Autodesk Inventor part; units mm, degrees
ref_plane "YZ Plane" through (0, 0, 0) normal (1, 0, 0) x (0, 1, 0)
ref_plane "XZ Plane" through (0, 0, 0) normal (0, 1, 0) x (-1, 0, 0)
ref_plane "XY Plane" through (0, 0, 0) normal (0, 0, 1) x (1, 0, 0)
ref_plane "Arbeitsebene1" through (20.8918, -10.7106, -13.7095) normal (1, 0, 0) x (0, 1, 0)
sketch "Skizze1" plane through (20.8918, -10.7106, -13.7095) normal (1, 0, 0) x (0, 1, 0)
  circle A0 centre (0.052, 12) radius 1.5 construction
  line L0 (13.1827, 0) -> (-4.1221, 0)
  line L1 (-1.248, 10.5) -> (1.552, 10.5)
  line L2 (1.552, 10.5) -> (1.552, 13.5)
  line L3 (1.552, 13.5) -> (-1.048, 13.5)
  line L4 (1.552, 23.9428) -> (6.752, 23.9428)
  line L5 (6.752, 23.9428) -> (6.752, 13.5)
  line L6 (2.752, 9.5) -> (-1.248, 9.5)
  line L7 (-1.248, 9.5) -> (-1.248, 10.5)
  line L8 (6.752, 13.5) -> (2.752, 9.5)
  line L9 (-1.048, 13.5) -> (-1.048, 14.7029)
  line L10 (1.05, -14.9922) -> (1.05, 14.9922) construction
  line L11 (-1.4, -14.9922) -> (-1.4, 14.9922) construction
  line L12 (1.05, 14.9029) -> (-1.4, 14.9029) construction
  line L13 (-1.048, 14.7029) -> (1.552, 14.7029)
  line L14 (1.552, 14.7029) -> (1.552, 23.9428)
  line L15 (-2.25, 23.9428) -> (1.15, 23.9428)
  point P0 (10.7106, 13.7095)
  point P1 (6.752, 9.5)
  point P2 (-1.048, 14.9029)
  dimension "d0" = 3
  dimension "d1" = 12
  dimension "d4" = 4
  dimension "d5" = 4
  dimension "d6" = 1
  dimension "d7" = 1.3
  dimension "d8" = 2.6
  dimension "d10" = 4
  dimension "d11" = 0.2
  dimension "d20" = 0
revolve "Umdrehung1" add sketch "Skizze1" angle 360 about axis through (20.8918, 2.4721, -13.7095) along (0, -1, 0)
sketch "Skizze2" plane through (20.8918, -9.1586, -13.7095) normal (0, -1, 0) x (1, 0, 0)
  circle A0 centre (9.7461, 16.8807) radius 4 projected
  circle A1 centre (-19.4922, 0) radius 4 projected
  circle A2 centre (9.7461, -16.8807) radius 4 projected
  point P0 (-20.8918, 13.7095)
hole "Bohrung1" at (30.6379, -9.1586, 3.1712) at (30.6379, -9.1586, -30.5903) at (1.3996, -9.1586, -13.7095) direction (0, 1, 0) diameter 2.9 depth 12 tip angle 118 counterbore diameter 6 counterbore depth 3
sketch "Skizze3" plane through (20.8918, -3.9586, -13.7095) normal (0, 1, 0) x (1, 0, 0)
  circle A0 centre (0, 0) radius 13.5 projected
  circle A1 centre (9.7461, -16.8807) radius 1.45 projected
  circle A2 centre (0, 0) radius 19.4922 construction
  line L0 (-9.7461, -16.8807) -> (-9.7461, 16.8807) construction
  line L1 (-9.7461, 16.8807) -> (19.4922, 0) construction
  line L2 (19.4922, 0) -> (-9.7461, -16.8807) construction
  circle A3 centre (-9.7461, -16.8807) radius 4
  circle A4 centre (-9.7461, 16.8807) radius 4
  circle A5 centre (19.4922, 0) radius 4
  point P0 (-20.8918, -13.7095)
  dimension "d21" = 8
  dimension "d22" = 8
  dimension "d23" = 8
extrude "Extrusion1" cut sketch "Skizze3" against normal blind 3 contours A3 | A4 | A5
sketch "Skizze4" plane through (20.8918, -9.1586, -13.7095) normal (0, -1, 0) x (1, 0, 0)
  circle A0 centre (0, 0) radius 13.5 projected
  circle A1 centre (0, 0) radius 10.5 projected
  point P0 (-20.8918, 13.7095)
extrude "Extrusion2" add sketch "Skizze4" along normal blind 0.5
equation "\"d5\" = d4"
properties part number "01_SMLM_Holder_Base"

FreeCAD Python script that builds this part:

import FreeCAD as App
import Part
import Sketcher

V = App.Vector

doc = App.newDocument("Part")
body = doc.addObject("PartDesign::Body", "Body")

sketch1 = body.newObject("Sketcher::SketchObject", "Sketch")
sketch1.AttachmentSupport = (doc.getObject("YZ_Plane"), [""])
sketch1.MapMode = "FlatFace"
sketch1.AttachmentOffset = App.Placement(V(0, 0, 20.8918), App.Rotation())
sketch1.addGeometry(Part.LineSegment(V(-9.2, -3.2, 0), V(-12, -3.2, 0)), False)
sketch1.addGeometry(Part.LineSegment(V(-12, -3.2, 0), V(-12, -4.2, 0)), False)
sketch1.addGeometry(Part.LineSegment(V(-12, -4.2, 0), V(-8, -4.2, 0)), False)
sketch1.addGeometry(Part.LineSegment(V(-8, -4.2, 0), V(-4, -0.2, 0)), False)
sketch1.addGeometry(Part.LineSegment(V(-4, -0.2, 0), V(-4, 10.2, 0)), False)
sketch1.addGeometry(Part.LineSegment(V(-4, 10.2, 0), V(-9.2, 10.2, 0)), False)
sketch1.addGeometry(Part.LineSegment(V(-9.2, 10.2, 0), V(-9.2, 1, 0)), False)
sketch1.addGeometry(Part.LineSegment(V(-9.2, 1, 0), V(-11.8, 1, 0)), False)
sketch1.addGeometry(Part.LineSegment(V(-11.8, 1, 0), V(-11.8, -0.2, 0)), False)
sketch1.addGeometry(Part.LineSegment(V(-11.8, -0.2, 0), V(-9.2, -0.2, 0)), False)
sketch1.addGeometry(Part.LineSegment(V(-9.2, -0.2, 0), V(-9.2, -3.2, 0)), False)
sketch1.addGeometry(Part.LineSegment(V(-4, -13.7, 0), V(-12, -13.7, 0)), True)
sketch1.addConstraint(Sketcher.Constraint("Coincident", 0, 2, 1, 1))
sketch1.addConstraint(Sketcher.Constraint("Coincident", 1, 2, 2, 1))
sketch1.addConstraint(Sketcher.Constraint("Coincident", 2, 2, 3, 1))
sketch1.addConstraint(Sketcher.Constraint("Coincident", 3, 2, 4, 1))
sketch1.addConstraint(Sketcher.Constraint("Coincident", 4, 2, 5, 1))
sketch1.addConstraint(Sketcher.Constraint("Coincident", 5, 2, 6, 1))
sketch1.addConstraint(Sketcher.Constraint("Coincident", 6, 2, 7, 1))
sketch1.addConstraint(Sketcher.Constraint("Coincident", 7, 2, 8, 1))
sketch1.addConstraint(Sketcher.Constraint("Coincident", 8, 2, 9, 1))
sketch1.addConstraint(Sketcher.Constraint("Coincident", 9, 2, 10, 1))
sketch1.addConstraint(Sketcher.Constraint("Coincident", 10, 2, 0, 1))
sketch1.addConstraint(Sketcher.Constraint("Horizontal", 0))
sketch1.addConstraint(Sketcher.Constraint("Vertical", 1))
sketch1.addConstraint(Sketcher.Constraint("Horizontal", 2))
sketch1.addConstraint(Sketcher.Constraint("Vertical", 4))
sketch1.addConstraint(Sketcher.Constraint("Horizontal", 5))
sketch1.addConstraint(Sketcher.Constraint("Vertical", 6))
sketch1.addConstraint(Sketcher.Constraint("Horizontal", 7))
sketch1.addConstraint(Sketcher.Constraint("Vertical", 8))
sketch1.addConstraint(Sketcher.Constraint("Horizontal", 9))
sketch1.addConstraint(Sketcher.Constraint("Vertical", 10))
sketch1.addConstraint(Sketcher.Constraint("Horizontal", 11))
sketch1.addConstraint(Sketcher.Constraint("Horizontal", 3, 2, 8, 2))
sketch1.addConstraint(Sketcher.Constraint("Vertical", 6, 2, 9, 2))
sketch1.addConstraint(Sketcher.Constraint("Vertical", 4, 2, 11, 1))
sketch1.addConstraint(Sketcher.Constraint("Vertical", 1, 2, 11, 2))
sketch1.addConstraint(Sketcher.Constraint("DistanceX", 2, 1, 2, 2, 4.0))
sketch1.addConstraint(Sketcher.Constraint("DistanceY", 1, 2, 1, 1, 1.0))
sketch1.addConstraint(Sketcher.Constraint("DistanceY", 10, 2, 10, 1, 3.0))
sketch1.addConstraint(Sketcher.Constraint("DistanceX", 7, 2, 7, 1, 2.6))
sketch1.addConstraint(Sketcher.Constraint("DistanceX", 2, 2, 3, 2, 4.0))
sketch1.addConstraint(Sketcher.Constraint("DistanceX", 0, 2, 7, 2, 0.2))
sketch1.addConstraint(Sketcher.Constraint("DistanceY", 6, 2, 6, 1, 9.24))
sketch1.addConstraint(Sketcher.Constraint("DistanceY", 11, 1, 2, 2, 9.5))
sketch1.addConstraint(Sketcher.Constraint("DistanceY", 8, 2, 8, 1, 1.203))
sketch1.addConstraint(Sketcher.Constraint("DistanceX", 0, 2, -1, 1, 11.9586))
sketch1.addConstraint(Sketcher.Constraint("DistanceY", 0, 2, -1, 1, 3.2095))
revolution = body.newObject("PartDesign::Revolution", "Revolution")
revolution.Profile = sketch1
revolution.ReferenceAxis = (sketch1, ["Axis0"])
revolution.Angle = 360

sketch2 = body.newObject("Sketcher::SketchObject", "Sketch001")
sketch2.AttachmentSupport = (doc.getObject("XZ_Plane"), [""])
sketch2.MapMode = "FlatFace"
sketch2.AttachmentOffset = App.Placement(V(0, 0, 9.1586), App.Rotation())
sketch2.addGeometry(Part.Circle(V(30.6, 3.2, 0), V(0, 0, 1), 1.4), False)
sketch2.addGeometry(Part.Circle(V(30.6, -30.6, 0), V(0, 0, 1), 1.4), False)
sketch2.addGeometry(Part.Circle(V(1.4, -13.7, 0), V(0, 0, 1), 1.4), False)
sketch2.addConstraint(Sketcher.Constraint("Equal", 0, 1))
sketch2.addConstraint(Sketcher.Constraint("Equal", 1, 2))
sketch2.addConstraint(Sketcher.Constraint("Vertical", 0, 3, 1, 3))
sketch2.addConstraint(Sketcher.Constraint("Diameter", 0, 2.9))
sketch2.addConstraint(Sketcher.Constraint("DistanceX", -1, 1, 0, 3, 30.638))
sketch2.addConstraint(Sketcher.Constraint("DistanceY", -1, 1, 0, 3, 3.1712))
sketch2.addConstraint(Sketcher.Constraint("DistanceY", 1, 3, -1, 1, 30.5903))
sketch2.addConstraint(Sketcher.Constraint("DistanceX", -1, 1, 2, 3, 1.3996))
sketch2.addConstraint(Sketcher.Constraint("DistanceY", 2, 3, -1, 1, 13.7095))
doc.recompute()
hole = body.newObject("PartDesign::Hole", "Hole")
hole.Profile = sketch2
hole.ThreadType = "None"
hole.Diameter = 2.9
hole.DepthType = "Dimension"
hole.Depth = 12
hole.DrillPoint = "Angled"
hole.DrillPointAngle = 118
hole.HoleCutType = "Counterbore"
hole.HoleCutDiameter = 6
hole.HoleCutDepth = 3

sketch3 = body.newObject("Sketcher::SketchObject", "Sketch002")
sketch3.AttachmentSupport = (doc.getObject("XZ_Plane"), [""])
sketch3.MapMode = "FlatFace"
sketch3.AttachmentOffset = App.Placement(V(0, 0, 3.9586), App.Rotation())
sketch3.addGeometry(Part.Circle(V(11.1, 3.2, 0), V(0, 0, 1), 4), False)
sketch3.addGeometry(Part.Circle(V(11.1, -30.6, 0), V(0, 0, 1), 4), False)
sketch3.addGeometry(Part.Circle(V(40.4, -13.7, 0), V(0, 0, 1), 4), False)
sketch3.addConstraint(Sketcher.Constraint("Equal", 0, 1))
sketch3.addConstraint(Sketcher.Constraint("Equal", 1, 2))
sketch3.addConstraint(Sketcher.Constraint("Vertical", 0, 3, 1, 3))
sketch3.addConstraint(Sketcher.Constraint("Diameter", 0, 8.0))
sketch3.addConstraint(Sketcher.Constraint("DistanceX", -1, 1, 2, 3, 40.384))
sketch3.addConstraint(Sketcher.Constraint("DistanceX", -1, 1, 0, 3, 11.1457))
sketch3.addConstraint(Sketcher.Constraint("DistanceY", -1, 1, 0, 3, 3.1712))
sketch3.addConstraint(Sketcher.Constraint("DistanceY", 1, 3, -1, 1, 30.5902))
sketch3.addConstraint(Sketcher.Constraint("DistanceY", 2, 3, -1, 1, 13.7095))
pocket1 = body.newObject("PartDesign::Pocket", "Pocket")
pocket1.Profile = sketch3
pocket1.Length = 3
pocket1.Reversed = True

sketch4 = body.newObject("Sketcher::SketchObject", "Sketch003")
sketch4.AttachmentSupport = (doc.getObject("XZ_Plane"), [""])
sketch4.MapMode = "FlatFace"
sketch4.AttachmentOffset = App.Placement(V(0, 0, 9.1586), App.Rotation())
sketch4.addGeometry(Part.Circle(V(21, -14, 0), V(0, 0, 1), 14), False)
sketch4.addGeometry(Part.Circle(V(21, -14, 0), V(0, 0, 1), 10), False)
sketch4.addConstraint(Sketcher.Constraint("Coincident", 1, 3, 0, 3))
sketch4.addConstraint(Sketcher.Constraint("Diameter", 0, 27.0))
sketch4.addConstraint(Sketcher.Constraint("Diameter", 1, 21.0))
sketch4.addConstraint(Sketcher.Constraint("DistanceX", -1, 1, 0, 3, 20.8918))
sketch4.addConstraint(Sketcher.Constraint("DistanceY", 0, 3, -1, 1, 13.7095))
pad1 = body.newObject("PartDesign::Pad", "Pad")
pad1.Profile = sketch4
pad1.Length = 0.5

doc.recompute()
